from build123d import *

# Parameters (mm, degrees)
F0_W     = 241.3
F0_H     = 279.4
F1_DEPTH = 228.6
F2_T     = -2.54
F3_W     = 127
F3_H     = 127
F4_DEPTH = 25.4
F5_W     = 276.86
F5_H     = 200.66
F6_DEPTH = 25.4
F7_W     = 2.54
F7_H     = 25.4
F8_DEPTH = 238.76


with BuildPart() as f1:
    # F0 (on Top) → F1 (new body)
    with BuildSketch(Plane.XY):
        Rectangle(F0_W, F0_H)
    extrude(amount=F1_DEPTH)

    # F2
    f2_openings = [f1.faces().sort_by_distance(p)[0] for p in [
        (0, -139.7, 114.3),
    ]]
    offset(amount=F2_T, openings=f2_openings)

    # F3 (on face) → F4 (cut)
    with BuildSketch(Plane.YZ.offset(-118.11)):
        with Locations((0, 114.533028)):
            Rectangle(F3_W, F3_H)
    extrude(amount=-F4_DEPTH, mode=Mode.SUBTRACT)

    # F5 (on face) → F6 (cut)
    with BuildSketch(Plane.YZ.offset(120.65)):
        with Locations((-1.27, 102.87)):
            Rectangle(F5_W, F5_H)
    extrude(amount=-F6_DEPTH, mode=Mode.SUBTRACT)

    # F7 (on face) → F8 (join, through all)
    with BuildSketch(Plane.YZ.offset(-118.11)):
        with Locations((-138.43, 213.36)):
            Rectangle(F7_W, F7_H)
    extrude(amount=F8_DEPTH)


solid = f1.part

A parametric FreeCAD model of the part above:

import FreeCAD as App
import Part
import Sketcher
Q = App.Units.Quantity


def faces_at(feature, points):
    """Names of the faces that lie closest to the given points."""
    faces = feature.Shape.Faces
    near = lambda p: min(range(len(faces)), key=lambda i: faces[i].distToShape(Part.Vertex(*p))[0])
    return sorted({f"Face{near(p) + 1}" for p in points})

doc = App.newDocument("Part")
body = doc.addObject("PartDesign::Body", "Body")

# Sketch on XY plane
sketch1 = body.newObject("Sketcher::SketchObject", "Sketch")
sketch1.AttachmentSupport = (doc.getObject("XY_Plane"), [""])
sketch1.MapMode = "FlatFace"
sketch1.addGeometry(Part.LineSegment(App.Vector(-120.65, 139.7, 0), App.Vector(-120.65, -139.7, 0)), False)
sketch1.addGeometry(Part.LineSegment(App.Vector(-120.65, -139.7, 0), App.Vector(120.65, -139.7, 0)), False)
sketch1.addGeometry(Part.LineSegment(App.Vector(120.65, -139.7, 0), App.Vector(120.65, 139.7, 0)), False)
sketch1.addGeometry(Part.LineSegment(App.Vector(120.65, 139.7, 0), App.Vector(-120.65, 139.7, 0)), False)
sketch1.addConstraint(Sketcher.Constraint("Coincident", 0, 2, 1, 1))
sketch1.addConstraint(Sketcher.Constraint("Coincident", 1, 2, 2, 1))
sketch1.addConstraint(Sketcher.Constraint("Coincident", 2, 2, 3, 1))
sketch1.addConstraint(Sketcher.Constraint("Coincident", 3, 2, 0, 1))
sketch1.addConstraint(Sketcher.Constraint("Vertical", 0))
sketch1.addConstraint(Sketcher.Constraint("Horizontal", 1))
sketch1.addConstraint(Sketcher.Constraint("Vertical", 2))
sketch1.addConstraint(Sketcher.Constraint("Horizontal", 3))
sketch1.addConstraint(Sketcher.Constraint("Symmetric", 0, 2, 2, 2, -1, 1))
sketch1.addConstraint(Sketcher.Constraint("DistanceY", 0, 2, 0, 1, Q("11 in")))
sketch1.addConstraint(Sketcher.Constraint("DistanceX", 1, 1, 1, 2, Q("9.5 in")))
pad1 = body.newObject("PartDesign::Pad", "Pad")
pad1.Profile = sketch1
pad1.Length = Q("9 in")
doc.recompute()

thickness = body.newObject("PartDesign::Thickness", "Thickness")
thickness.Base = (pad1, faces_at(pad1, [(0, -139.7, 114.3)]))
thickness.Value = Q("0.1 in")
thickness.Reversed = True
thickness.Join = "Arc"

# Sketch on YZ plane
sketch2 = body.newObject("Sketcher::SketchObject", "Sketch001")
sketch2.AttachmentSupport = (doc.getObject("YZ_Plane"), [""])
sketch2.MapMode = "FlatFace"
sketch2.AttachmentOffset = App.Placement(App.Vector(0, 0, -4.65 * 25.4), App.Rotation())
sketch2.addGeometry(Part.LineSegment(App.Vector(-63.5, 178.033028, 0), App.Vector(-63.5, 51.033028, 0)), False)
sketch2.addGeometry(Part.LineSegment(App.Vector(-63.5, 51.033028, 0), App.Vector(63.5, 51.033028, 0)), False)
sketch2.addGeometry(Part.LineSegment(App.Vector(63.5, 51.033028, 0), App.Vector(63.5, 178.033028, 0)), False)
sketch2.addGeometry(Part.LineSegment(App.Vector(63.5, 178.033028, 0), App.Vector(-63.5, 178.033028, 0)), False)
sketch2.addConstraint(Sketcher.Constraint("Coincident", 0, 2, 1, 1))
sketch2.addConstraint(Sketcher.Constraint("Coincident", 1, 2, 2, 1))
sketch2.addConstraint(Sketcher.Constraint("Coincident", 2, 2, 3, 1))
sketch2.addConstraint(Sketcher.Constraint("Coincident", 3, 2, 0, 1))
sketch2.addConstraint(Sketcher.Constraint("Vertical", 0))
sketch2.addConstraint(Sketcher.Constraint("Horizontal", 1))
sketch2.addConstraint(Sketcher.Constraint("Vertical", 2))
sketch2.addConstraint(Sketcher.Constraint("Horizontal", 3))
sketch2.addConstraint(Sketcher.Constraint("Equal", 3, 0))
sketch2.addConstraint(Sketcher.Constraint("DistanceX", 1, 1, 1, 2, Q("5 in")))
sketch2.addConstraint(Sketcher.Constraint("DistanceX", 0, 2, -1, 1, Q("2.5 in")))
sketch2.addConstraint(Sketcher.Constraint("DistanceY", -1, 1, 0, 2, Q("51.033028 mm")))
pocket1 = body.newObject("PartDesign::Pocket", "Pocket")
pocket1.Profile = sketch2
pocket1.Length = Q("1 in")

# Sketch on YZ plane
sketch3 = body.newObject("Sketcher::SketchObject", "Sketch002")
sketch3.AttachmentSupport = (doc.getObject("YZ_Plane"), [""])
sketch3.MapMode = "FlatFace"
sketch3.AttachmentOffset = App.Placement(App.Vector(0, 0, 4.75 * 25.4), App.Rotation())
sketch3.addGeometry(Part.LineSegment(App.Vector(-139.7, 203.2, 0), App.Vector(-139.7, 2.54, 0)), False)
sketch3.addGeometry(Part.LineSegment(App.Vector(-139.7, 2.54, 0), App.Vector(137.16, 2.54, 0)), False)
sketch3.addGeometry(Part.LineSegment(App.Vector(137.16, 2.54, 0), App.Vector(137.16, 203.2, 0)), False)
sketch3.addGeometry(Part.LineSegment(App.Vector(137.16, 203.2, 0), App.Vector(-139.7, 203.2, 0)), False)
sketch3.addConstraint(Sketcher.Constraint("Coincident", 0, 2, 1, 1))
sketch3.addConstraint(Sketcher.Constraint("Coincident", 1, 2, 2, 1))
sketch3.addConstraint(Sketcher.Constraint("Coincident", 2, 2, 3, 1))
sketch3.addConstraint(Sketcher.Constraint("Coincident", 3, 2, 0, 1))
sketch3.addConstraint(Sketcher.Constraint("Vertical", 0))
sketch3.addConstraint(Sketcher.Constraint("Horizontal", 1))
sketch3.addConstraint(Sketcher.Constraint("Vertical", 2))
sketch3.addConstraint(Sketcher.Constraint("Horizontal", 3))
sketch3.addConstraint(Sketcher.Constraint("DistanceX", 1, 1, 1, 2, Q("10.9 in")))
sketch3.addConstraint(Sketcher.Constraint("DistanceY", 0, 2, 0, 1, Q("7.9 in")))
sketch3.addConstraint(Sketcher.Constraint("DistanceY", -1, 1, 2, 2, Q("8 in")))
sketch3.addConstraint(Sketcher.Constraint("DistanceX", 0, 2, -1, 1, Q("5.5 in")))
pocket2 = body.newObject("PartDesign::Pocket", "Pocket001")
pocket2.Profile = sketch3
pocket2.Length = Q("1 in")

# Sketch on YZ plane
sketch4 = body.newObject("Sketcher::SketchObject", "Sketch003")
sketch4.AttachmentSupport = (doc.getObject("YZ_Plane"), [""])
sketch4.MapMode = "FlatFace"
sketch4.AttachmentOffset = App.Placement(App.Vector(0, 0, -4.65 * 25.4), App.Rotation())
sketch4.addGeometry(Part.LineSegment(App.Vector(-139.7, 226.06, 0), App.Vector(-139.7, 200.66, 0)), False)
sketch4.addGeometry(Part.LineSegment(App.Vector(-139.7, 200.66, 0), App.Vector(-137.16, 200.66, 0)), False)
sketch4.addGeometry(Part.LineSegment(App.Vector(-137.16, 200.66, 0), App.Vector(-137.16, 226.06, 0)), False)
sketch4.addGeometry(Part.LineSegment(App.Vector(-137.16, 226.06, 0), App.Vector(-139.7, 226.06, 0)), False)
sketch4.addConstraint(Sketcher.Constraint("Coincident", 0, 2, 1, 1))
sketch4.addConstraint(Sketcher.Constraint("Coincident", 1, 2, 2, 1))
sketch4.addConstraint(Sketcher.Constraint("Coincident", 2, 2, 3, 1))
sketch4.addConstraint(Sketcher.Constraint("Coincident", 3, 2, 0, 1))
sketch4.addConstraint(Sketcher.Constraint("Vertical", 0))
sketch4.addConstraint(Sketcher.Constraint("Horizontal", 1))
sketch4.addConstraint(Sketcher.Constraint("Vertical", 2))
sketch4.addConstraint(Sketcher.Constraint("Horizontal", 3))
sketch4.addConstraint(Sketcher.Constraint("DistanceY", 0, 2, 0, 1, Q("1 in")))
sketch4.addConstraint(Sketcher.Constraint("DistanceX", 1, 1, 1, 2, Q("0.1 in")))
sketch4.addConstraint(Sketcher.Constraint("DistanceX", 0, 2, -1, 1, Q("5.5 in")))
sketch4.addConstraint(Sketcher.Constraint("DistanceY", -1, 1, 0, 2, Q("7.9 in")))
pad2 = body.newObject("PartDesign::Pad", "Pad001")
pad2.Profile = sketch4
pad2.Type = "UpToLast"

doc.recompute()
